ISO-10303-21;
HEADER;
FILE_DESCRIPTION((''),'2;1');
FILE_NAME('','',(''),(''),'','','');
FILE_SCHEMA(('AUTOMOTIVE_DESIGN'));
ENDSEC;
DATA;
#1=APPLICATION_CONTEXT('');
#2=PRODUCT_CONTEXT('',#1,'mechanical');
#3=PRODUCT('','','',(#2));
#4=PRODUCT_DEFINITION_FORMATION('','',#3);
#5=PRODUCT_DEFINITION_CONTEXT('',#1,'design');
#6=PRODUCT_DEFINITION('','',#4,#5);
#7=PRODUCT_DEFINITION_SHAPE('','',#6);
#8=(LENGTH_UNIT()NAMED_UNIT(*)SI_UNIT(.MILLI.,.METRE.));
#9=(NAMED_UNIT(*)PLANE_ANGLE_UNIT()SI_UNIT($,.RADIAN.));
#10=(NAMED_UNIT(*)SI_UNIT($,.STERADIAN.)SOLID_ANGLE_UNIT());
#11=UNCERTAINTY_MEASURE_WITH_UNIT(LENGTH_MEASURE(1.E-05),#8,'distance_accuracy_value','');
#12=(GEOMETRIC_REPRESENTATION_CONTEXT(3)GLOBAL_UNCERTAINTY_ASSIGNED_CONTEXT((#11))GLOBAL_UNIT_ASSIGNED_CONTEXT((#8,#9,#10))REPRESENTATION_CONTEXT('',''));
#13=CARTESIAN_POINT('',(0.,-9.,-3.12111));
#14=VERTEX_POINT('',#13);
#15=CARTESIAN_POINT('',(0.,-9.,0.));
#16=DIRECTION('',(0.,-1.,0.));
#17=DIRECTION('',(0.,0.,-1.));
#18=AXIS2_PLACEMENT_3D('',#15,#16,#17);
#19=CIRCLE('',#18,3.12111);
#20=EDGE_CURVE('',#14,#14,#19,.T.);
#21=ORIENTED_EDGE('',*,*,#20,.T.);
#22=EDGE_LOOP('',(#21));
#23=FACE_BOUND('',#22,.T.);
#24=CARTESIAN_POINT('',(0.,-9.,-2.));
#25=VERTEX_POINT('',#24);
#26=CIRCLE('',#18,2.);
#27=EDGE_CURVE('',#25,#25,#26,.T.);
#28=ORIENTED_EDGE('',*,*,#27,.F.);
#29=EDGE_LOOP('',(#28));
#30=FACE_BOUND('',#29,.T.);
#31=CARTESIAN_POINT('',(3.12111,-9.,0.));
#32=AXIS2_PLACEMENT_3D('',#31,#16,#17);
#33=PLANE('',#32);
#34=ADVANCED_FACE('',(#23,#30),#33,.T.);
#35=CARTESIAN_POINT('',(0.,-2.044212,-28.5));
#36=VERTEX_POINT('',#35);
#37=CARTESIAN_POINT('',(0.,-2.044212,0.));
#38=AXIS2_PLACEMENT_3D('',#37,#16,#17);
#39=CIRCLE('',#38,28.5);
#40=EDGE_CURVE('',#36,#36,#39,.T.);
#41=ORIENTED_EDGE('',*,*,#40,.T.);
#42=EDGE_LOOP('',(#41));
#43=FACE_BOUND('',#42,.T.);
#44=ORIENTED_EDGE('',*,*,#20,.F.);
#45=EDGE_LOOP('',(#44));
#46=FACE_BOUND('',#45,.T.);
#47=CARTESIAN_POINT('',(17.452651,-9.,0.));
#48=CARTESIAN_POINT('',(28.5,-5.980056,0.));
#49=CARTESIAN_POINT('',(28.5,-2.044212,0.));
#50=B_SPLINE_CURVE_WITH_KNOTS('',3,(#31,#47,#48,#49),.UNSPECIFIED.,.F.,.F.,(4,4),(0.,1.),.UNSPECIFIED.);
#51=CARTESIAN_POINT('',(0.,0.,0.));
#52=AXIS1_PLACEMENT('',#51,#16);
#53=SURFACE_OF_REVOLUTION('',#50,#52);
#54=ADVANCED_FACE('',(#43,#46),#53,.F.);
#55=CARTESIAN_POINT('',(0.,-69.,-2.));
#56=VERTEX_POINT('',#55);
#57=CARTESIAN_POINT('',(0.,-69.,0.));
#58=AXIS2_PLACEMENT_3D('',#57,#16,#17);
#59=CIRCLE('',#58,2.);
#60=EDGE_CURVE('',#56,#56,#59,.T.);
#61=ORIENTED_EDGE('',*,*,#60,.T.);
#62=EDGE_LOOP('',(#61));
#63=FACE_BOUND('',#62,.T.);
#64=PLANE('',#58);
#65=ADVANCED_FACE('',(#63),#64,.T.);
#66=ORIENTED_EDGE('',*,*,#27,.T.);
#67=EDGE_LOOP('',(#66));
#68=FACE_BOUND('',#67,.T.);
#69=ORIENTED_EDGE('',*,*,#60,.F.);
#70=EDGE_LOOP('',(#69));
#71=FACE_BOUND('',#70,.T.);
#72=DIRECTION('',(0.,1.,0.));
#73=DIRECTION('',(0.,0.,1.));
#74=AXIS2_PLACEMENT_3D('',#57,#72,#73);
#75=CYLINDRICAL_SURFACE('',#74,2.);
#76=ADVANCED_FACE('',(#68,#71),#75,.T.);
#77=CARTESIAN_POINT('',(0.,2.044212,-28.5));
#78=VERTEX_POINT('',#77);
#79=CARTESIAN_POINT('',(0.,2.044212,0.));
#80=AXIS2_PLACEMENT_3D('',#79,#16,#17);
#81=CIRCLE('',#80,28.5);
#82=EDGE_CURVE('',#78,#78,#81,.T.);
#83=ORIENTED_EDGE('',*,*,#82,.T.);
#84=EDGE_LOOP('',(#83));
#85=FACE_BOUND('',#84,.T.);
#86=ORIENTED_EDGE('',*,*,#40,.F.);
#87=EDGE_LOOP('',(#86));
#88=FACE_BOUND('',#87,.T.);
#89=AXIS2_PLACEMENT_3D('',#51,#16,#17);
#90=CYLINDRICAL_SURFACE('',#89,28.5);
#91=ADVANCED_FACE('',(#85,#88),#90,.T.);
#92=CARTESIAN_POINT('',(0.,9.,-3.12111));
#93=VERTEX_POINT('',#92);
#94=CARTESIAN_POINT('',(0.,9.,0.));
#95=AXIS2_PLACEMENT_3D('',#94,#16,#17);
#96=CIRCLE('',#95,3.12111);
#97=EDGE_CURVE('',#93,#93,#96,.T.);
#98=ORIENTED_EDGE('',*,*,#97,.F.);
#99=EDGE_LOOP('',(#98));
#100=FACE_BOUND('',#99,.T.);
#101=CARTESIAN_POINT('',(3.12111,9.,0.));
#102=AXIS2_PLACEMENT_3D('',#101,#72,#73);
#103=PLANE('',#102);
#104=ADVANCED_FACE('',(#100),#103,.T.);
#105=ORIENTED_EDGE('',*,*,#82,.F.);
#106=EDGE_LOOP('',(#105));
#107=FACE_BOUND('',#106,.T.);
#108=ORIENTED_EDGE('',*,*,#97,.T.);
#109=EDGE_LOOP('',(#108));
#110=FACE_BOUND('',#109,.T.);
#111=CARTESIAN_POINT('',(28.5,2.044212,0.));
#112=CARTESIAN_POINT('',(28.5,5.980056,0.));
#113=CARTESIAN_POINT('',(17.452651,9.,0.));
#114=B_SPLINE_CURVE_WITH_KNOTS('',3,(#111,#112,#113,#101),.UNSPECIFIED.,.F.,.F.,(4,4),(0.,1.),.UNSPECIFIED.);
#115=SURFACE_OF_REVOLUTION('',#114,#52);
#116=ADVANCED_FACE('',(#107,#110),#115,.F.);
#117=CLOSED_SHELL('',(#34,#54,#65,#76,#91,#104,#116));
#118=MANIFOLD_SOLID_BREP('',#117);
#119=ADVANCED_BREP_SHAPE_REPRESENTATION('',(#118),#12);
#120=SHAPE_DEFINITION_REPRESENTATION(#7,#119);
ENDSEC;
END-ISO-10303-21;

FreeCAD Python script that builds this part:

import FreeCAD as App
import Part
import Sketcher

V = App.Vector
Q = App.Units.Quantity

doc = App.newDocument("Part")
body = doc.addObject("PartDesign::Body", "Body")

# Sketch on XY plane
sketch1 = doc.addObject("Sketcher::SketchObject", "Sketch")
body.addObject(sketch1)
sketch1.AttachmentSupport = (doc.XY_Plane, [""])
sketch1.MapMode = "FlatFace"
sketch1.addGeometry(Part.LineSegment(V(28.5, -2.044212, 0), V(28.5, 2.044212, 0)), False)
sketch1.addGeometry(Part.BSplineCurve([V(28.5, 2.044212, 0), V(28.5, 5.980056, 0), V(17.452651, 9, 0), V(3.12111, 9, 0)], [4, 4], [0, 1], False, 3, [1, 1, 1, 1], False), False)
sketch1.addGeometry(Part.LineSegment(V(3.12111, 9, 0), V(0, 9, 0)), False)
sketch1.addGeometry(Part.LineSegment(V(0, 9, 0), V(0, -9, 0)), False)
sketch1.addGeometry(Part.LineSegment(V(0, -9, 0), V(3.12111, -9, 0)), False)
sketch1.addGeometry(Part.BSplineCurve([V(28.5, -2.044212, 0), V(28.5, -5.980056, 0), V(17.452651, -9, 0), V(3.12111, -9, 0)], [4, 4], [0, 1], False, 3, [1, 1, 1, 1], False), False)
sketch1.addConstraint(Sketcher.Constraint("Block", 1))
sketch1.addConstraint(Sketcher.Constraint("Block", 5))
sketch1.addConstraint(Sketcher.Constraint("Coincident", 0, 2, 1, 1))
sketch1.addConstraint(Sketcher.Constraint("Coincident", 1, 2, 2, 1))
sketch1.addConstraint(Sketcher.Constraint("Coincident", 2, 2, 3, 1))
sketch1.addConstraint(Sketcher.Constraint("Coincident", 3, 2, 4, 1))
sketch1.addConstraint(Sketcher.Constraint("Coincident", 4, 2, 5, 2))
sketch1.addConstraint(Sketcher.Constraint("Coincident", 5, 1, 0, 1))
sketch1.addConstraint(Sketcher.Constraint("Horizontal", 2))
sketch1.addConstraint(Sketcher.Constraint("Vertical", 3))
sketch1.addConstraint(Sketcher.Constraint("Horizontal", 4))
sketch1.addConstraint(Sketcher.Constraint("PointOnObject", 2, 2, -2))
revolution = doc.addObject("PartDesign::Revolution", "Revolution")
body.addObject(revolution)
revolution.Profile = sketch1
revolution.ReferenceAxis = (sketch1, ["V_Axis"])
revolution.Angle = 360

# Sketch on XZ plane
sketch2 = doc.addObject("Sketcher::SketchObject", "Sketch001")
body.addObject(sketch2)
sketch2.AttachmentSupport = (doc.XZ_Plane, [""])
sketch2.MapMode = "FlatFace"
sketch2.AttachmentOffset = App.Placement(V(0, 0, 9), App.Rotation())
sketch2.addGeometry(Part.Circle(V(0, 0, 0), V(0, 0, 1), 2), False)
sketch2.addConstraint(Sketcher.Constraint("Coincident", 0, 3, -1, 1))
sketch2.addConstraint(Sketcher.Constraint("Diameter", 0, Q("4 mm")))
pad1 = doc.addObject("PartDesign::Pad", "Pad")
body.addObject(pad1)
pad1.Profile = sketch2
pad1.Length = 60

doc.recompute()
